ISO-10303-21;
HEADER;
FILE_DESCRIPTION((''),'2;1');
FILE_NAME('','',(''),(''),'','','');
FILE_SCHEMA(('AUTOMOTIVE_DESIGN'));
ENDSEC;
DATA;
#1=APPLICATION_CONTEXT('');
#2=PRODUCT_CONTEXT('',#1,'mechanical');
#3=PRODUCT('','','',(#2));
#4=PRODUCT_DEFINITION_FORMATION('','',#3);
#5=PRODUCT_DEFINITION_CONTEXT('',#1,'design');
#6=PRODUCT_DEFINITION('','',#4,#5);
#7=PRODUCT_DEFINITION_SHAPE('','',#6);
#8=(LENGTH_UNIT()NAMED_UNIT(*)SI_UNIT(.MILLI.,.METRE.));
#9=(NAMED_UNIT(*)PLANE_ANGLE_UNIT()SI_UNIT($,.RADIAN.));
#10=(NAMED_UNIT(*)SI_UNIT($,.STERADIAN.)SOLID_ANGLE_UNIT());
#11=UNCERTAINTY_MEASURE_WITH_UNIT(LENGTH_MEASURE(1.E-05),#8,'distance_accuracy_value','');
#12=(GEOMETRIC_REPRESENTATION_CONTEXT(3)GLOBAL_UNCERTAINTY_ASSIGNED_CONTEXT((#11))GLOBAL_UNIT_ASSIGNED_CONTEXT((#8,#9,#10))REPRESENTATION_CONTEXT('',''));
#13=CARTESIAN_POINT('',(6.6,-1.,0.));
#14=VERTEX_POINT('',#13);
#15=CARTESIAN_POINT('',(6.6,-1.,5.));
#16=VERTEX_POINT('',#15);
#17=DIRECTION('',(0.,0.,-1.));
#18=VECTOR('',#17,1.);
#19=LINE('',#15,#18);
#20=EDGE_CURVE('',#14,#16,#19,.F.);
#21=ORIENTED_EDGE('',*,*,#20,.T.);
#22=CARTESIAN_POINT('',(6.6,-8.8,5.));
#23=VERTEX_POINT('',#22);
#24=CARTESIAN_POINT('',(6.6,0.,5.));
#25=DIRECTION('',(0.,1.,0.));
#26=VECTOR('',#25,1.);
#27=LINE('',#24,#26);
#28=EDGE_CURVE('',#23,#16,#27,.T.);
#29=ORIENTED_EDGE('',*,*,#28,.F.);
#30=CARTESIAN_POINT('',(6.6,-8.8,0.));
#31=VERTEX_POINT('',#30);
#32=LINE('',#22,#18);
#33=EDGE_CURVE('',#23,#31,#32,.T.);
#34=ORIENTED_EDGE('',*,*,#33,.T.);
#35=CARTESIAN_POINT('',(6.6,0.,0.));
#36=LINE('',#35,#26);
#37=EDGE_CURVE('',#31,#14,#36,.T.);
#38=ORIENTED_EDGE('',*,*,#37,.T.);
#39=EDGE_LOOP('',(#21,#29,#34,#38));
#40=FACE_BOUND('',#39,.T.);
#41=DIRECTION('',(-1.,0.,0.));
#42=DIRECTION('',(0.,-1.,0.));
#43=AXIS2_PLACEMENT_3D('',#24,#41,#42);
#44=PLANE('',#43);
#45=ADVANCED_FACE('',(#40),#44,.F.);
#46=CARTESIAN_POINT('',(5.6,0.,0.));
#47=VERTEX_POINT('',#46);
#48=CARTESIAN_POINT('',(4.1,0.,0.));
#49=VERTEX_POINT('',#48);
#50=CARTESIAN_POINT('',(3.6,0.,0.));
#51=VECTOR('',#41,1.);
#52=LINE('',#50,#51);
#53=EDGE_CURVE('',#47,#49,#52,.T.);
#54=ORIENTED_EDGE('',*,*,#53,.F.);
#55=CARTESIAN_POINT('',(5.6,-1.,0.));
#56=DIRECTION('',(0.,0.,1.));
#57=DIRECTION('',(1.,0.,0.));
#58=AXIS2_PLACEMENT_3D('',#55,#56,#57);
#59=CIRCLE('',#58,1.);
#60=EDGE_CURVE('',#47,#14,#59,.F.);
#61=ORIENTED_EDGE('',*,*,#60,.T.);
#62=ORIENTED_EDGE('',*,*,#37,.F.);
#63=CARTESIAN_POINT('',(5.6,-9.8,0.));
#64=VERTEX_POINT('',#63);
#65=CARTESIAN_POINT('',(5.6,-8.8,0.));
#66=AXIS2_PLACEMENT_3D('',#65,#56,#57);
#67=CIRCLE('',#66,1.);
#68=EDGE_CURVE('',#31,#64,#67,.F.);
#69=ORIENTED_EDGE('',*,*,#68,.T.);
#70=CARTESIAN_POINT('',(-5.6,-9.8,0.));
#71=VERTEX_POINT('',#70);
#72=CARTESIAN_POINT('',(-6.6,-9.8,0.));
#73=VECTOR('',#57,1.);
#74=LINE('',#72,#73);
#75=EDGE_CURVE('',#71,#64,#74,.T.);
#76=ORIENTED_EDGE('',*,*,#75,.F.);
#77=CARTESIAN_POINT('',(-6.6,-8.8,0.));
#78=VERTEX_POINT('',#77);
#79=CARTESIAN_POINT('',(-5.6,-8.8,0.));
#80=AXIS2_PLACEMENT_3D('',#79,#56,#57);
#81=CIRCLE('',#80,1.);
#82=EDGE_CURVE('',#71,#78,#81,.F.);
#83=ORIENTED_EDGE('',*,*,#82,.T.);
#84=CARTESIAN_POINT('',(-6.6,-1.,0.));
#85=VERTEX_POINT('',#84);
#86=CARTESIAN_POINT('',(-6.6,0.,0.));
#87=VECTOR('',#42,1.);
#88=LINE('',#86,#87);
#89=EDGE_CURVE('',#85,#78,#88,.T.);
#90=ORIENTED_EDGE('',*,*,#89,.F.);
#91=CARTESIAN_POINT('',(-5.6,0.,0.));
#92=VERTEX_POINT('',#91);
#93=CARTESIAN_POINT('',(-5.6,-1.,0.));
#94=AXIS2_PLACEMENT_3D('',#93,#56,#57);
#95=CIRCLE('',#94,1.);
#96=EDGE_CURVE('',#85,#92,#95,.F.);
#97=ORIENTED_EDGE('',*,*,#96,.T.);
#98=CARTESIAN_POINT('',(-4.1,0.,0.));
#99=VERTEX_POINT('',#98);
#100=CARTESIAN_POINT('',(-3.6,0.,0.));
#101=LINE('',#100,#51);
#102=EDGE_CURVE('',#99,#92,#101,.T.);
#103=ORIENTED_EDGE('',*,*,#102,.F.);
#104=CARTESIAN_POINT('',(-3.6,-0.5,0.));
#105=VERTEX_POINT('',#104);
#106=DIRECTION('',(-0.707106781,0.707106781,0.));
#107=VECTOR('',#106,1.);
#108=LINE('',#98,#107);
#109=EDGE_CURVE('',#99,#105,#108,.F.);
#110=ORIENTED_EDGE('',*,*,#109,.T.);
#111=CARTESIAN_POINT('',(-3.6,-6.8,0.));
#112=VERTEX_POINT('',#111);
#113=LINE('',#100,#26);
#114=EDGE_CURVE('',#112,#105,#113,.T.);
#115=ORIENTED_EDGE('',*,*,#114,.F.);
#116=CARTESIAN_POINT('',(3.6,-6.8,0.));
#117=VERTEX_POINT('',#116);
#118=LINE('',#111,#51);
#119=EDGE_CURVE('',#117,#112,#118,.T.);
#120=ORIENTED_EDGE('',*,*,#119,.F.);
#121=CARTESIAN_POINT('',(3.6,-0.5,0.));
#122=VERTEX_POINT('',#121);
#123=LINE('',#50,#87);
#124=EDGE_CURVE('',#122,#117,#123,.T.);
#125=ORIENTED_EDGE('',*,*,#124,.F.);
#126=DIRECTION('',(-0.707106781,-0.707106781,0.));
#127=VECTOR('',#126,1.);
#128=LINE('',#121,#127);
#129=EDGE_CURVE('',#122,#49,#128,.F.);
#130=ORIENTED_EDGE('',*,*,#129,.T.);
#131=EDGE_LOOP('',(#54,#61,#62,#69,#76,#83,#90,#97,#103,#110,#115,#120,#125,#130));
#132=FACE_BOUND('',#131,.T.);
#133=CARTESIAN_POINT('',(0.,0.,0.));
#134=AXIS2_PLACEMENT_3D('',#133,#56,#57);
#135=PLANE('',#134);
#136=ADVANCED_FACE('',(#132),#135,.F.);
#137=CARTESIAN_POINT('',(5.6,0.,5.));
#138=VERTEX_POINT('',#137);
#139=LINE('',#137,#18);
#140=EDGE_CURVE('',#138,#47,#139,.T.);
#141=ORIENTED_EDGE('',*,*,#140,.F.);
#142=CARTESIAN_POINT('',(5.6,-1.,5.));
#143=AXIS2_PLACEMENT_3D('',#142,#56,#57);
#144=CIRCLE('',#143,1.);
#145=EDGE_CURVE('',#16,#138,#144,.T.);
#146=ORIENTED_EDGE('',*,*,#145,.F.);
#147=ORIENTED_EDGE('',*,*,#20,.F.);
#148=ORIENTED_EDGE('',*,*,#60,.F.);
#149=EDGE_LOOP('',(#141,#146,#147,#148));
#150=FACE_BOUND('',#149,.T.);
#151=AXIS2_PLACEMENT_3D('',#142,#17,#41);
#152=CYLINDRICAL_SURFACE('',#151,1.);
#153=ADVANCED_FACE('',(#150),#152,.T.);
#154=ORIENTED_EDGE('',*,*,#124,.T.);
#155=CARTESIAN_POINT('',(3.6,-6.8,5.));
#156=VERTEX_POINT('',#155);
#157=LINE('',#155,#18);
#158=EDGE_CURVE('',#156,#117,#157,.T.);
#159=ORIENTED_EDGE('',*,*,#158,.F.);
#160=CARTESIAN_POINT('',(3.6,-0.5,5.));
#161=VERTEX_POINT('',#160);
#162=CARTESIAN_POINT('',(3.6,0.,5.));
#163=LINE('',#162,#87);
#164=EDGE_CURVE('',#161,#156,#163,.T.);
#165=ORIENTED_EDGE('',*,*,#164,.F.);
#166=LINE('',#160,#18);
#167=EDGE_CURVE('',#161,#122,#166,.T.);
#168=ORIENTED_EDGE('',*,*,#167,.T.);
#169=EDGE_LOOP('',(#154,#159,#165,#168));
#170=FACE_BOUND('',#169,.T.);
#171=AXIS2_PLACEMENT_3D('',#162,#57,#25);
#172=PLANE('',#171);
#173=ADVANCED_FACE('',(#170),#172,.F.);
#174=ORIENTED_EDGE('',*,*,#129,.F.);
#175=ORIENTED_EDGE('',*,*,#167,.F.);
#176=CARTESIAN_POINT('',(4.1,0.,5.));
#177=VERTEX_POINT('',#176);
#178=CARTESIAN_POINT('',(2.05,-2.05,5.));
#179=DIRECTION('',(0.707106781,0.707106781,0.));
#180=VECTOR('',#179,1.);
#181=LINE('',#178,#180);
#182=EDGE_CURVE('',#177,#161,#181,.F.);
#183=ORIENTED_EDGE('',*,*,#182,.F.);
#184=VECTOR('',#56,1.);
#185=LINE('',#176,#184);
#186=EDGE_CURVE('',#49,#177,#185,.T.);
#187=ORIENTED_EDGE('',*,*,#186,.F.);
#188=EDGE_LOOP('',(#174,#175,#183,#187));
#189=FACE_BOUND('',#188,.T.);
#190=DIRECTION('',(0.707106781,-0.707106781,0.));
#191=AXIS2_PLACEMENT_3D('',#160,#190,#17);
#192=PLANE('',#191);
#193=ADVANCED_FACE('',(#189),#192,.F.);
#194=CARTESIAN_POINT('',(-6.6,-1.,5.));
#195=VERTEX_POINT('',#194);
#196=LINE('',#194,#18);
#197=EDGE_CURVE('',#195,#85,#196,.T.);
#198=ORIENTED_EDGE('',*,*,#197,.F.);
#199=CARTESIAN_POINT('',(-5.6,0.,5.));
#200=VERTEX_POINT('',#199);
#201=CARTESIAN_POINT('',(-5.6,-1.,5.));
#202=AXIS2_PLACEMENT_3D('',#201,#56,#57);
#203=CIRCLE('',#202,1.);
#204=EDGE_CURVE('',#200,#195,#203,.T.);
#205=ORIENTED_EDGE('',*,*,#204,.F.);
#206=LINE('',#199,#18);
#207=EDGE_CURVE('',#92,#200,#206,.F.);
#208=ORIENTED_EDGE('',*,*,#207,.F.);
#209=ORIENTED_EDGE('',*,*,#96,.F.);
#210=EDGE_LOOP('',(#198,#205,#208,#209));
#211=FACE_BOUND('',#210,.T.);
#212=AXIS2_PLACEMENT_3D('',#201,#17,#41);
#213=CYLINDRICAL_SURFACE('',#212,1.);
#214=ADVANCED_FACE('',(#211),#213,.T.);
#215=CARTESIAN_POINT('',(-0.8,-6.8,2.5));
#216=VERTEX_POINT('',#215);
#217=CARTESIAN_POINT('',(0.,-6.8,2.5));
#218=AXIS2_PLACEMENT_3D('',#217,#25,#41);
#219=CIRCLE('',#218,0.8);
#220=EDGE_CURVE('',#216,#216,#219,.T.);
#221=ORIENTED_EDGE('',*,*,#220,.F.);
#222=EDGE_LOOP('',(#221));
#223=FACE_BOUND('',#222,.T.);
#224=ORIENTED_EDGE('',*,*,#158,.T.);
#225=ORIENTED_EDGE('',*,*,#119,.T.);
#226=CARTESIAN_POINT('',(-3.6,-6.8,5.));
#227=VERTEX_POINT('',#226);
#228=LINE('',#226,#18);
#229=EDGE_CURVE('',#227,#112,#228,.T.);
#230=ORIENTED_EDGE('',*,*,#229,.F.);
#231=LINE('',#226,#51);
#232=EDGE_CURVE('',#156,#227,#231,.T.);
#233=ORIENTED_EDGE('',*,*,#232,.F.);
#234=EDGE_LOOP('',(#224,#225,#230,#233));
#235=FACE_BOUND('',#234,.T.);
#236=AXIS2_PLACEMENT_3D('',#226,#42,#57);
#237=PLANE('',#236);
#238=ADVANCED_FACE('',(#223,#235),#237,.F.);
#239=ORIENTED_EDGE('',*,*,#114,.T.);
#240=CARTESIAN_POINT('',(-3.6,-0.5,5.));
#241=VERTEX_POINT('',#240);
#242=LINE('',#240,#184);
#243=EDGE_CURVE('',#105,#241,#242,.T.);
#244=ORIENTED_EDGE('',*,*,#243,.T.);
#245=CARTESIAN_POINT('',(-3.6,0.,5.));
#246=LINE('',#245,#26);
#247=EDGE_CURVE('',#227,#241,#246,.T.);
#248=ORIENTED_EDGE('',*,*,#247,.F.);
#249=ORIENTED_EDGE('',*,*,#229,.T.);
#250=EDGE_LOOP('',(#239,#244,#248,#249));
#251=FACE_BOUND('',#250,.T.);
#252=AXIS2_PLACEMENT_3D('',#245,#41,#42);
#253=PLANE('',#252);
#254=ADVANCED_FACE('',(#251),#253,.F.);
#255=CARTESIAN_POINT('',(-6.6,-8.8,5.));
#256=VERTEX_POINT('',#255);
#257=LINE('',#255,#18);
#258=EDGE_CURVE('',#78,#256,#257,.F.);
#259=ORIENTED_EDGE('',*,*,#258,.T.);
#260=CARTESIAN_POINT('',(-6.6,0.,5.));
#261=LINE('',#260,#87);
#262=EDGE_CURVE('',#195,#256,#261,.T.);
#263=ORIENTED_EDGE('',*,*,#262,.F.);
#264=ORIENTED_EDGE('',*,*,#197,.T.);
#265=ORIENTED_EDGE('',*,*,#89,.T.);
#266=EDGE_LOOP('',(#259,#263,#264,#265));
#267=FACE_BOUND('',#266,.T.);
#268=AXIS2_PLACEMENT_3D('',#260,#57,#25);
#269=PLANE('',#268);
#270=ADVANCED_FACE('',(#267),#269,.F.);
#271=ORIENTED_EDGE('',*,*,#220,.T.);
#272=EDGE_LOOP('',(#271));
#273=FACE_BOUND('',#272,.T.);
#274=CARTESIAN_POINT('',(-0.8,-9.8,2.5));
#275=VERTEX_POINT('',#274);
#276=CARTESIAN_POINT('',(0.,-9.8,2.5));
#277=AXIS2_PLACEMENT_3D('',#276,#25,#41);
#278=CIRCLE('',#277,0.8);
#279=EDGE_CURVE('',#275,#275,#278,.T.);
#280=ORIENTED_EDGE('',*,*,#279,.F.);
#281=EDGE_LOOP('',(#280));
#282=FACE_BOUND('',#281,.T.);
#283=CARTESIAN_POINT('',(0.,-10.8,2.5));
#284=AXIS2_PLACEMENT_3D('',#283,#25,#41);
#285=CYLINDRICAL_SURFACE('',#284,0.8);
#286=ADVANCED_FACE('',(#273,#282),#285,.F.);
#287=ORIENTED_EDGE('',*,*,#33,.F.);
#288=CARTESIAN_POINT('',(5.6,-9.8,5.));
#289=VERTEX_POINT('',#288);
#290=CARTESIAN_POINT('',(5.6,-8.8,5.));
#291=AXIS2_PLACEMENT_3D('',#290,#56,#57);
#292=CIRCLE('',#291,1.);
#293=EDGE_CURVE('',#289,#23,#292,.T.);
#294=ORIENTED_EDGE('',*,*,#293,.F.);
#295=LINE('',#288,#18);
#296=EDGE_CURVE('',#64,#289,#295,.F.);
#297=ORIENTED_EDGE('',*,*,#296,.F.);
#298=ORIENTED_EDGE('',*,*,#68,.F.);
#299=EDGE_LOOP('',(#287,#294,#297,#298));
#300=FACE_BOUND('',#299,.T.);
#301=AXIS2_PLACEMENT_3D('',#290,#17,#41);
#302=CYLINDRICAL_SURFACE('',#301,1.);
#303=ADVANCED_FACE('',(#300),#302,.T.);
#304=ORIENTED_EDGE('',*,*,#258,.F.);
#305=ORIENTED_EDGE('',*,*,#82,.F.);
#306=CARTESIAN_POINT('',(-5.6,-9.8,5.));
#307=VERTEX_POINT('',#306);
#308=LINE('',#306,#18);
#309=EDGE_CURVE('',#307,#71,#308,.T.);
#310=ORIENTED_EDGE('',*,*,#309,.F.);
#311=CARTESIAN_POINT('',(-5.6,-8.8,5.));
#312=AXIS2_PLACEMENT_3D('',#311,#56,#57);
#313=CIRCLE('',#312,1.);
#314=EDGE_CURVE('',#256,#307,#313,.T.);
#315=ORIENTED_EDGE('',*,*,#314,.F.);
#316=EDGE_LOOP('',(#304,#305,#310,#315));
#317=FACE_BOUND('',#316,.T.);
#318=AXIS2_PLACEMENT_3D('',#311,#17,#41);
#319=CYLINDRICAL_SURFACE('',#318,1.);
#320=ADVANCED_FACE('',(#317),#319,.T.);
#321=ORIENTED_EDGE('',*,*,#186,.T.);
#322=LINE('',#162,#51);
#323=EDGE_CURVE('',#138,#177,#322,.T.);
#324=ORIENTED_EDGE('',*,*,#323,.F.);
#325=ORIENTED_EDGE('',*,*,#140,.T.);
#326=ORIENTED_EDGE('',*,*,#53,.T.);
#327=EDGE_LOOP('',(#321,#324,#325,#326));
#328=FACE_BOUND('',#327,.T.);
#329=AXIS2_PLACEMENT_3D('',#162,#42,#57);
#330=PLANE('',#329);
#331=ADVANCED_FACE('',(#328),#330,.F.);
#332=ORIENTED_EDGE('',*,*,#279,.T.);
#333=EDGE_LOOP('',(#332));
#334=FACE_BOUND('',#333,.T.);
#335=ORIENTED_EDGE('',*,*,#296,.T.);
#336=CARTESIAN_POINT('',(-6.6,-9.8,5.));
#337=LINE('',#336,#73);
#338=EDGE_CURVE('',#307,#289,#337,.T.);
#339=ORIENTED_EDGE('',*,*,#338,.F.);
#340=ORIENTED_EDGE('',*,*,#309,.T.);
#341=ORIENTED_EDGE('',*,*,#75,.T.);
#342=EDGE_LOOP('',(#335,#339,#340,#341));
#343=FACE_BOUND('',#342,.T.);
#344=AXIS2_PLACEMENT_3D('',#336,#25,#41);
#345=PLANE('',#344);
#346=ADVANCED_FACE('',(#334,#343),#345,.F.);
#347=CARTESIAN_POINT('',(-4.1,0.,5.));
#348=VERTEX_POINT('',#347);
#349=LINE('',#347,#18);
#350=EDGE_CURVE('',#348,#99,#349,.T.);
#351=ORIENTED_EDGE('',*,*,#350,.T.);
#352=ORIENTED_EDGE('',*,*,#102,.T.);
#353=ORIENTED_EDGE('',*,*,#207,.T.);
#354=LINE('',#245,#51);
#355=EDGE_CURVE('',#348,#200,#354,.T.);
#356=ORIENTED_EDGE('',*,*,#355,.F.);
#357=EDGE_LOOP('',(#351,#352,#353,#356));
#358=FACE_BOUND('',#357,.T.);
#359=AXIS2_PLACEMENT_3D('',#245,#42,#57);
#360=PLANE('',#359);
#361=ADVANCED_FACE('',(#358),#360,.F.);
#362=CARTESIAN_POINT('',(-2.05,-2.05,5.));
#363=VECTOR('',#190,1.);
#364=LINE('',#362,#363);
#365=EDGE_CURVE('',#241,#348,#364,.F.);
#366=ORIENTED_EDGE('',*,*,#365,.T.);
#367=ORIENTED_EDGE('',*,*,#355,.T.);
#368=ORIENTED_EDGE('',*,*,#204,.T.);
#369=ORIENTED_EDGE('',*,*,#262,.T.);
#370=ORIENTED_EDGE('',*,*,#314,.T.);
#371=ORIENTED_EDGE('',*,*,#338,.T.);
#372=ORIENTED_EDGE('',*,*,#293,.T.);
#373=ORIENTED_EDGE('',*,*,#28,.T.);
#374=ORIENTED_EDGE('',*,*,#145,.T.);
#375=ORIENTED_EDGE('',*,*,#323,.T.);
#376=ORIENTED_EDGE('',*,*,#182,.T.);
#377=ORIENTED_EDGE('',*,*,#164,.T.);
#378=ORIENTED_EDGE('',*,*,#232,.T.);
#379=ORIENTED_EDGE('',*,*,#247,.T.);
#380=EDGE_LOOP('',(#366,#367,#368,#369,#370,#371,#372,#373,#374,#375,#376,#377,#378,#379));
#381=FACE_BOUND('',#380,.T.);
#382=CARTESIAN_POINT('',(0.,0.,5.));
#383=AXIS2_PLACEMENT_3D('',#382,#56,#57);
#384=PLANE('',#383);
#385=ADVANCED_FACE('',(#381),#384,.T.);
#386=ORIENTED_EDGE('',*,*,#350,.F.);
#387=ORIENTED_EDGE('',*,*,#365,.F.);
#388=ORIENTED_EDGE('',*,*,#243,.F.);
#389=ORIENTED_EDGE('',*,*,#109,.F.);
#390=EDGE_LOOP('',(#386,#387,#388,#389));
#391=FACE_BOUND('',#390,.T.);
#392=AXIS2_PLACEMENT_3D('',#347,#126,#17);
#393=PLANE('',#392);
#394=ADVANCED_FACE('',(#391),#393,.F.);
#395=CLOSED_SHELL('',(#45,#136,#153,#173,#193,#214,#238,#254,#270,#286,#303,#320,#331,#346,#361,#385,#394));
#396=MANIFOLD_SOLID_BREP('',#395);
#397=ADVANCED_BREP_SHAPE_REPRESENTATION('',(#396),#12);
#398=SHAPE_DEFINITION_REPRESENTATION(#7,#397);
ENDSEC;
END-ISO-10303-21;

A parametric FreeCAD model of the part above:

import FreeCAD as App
import Part
import Sketcher
from FreeCAD import Vector


def edges_at(feature, points):
    """Names of the edges that pass closest to the given points."""
    edges = feature.Shape.Edges
    near = lambda p: min(range(len(edges)), key=lambda i: edges[i].distToShape(Part.Vertex(*p))[0])
    return sorted({f"Edge{near(p) + 1}" for p in points})

doc = App.newDocument("Part")
body = doc.addObject("PartDesign::Body", "Body")

sketch1 = body.newObject("Sketcher::SketchObject", "Sketch")
sketch1.AttachmentSupport = (doc.getObject("XY_Plane"), [""])
sketch1.MapMode = "FlatFace"
sketch1.addGeometry([
    Part.LineSegment(Vector(-3.6, -6.8, 0), Vector(-3.6, 0, 0)),
    Part.LineSegment(Vector(-3.6, 0, 0), Vector(-6.6, 0, 0)),
    Part.LineSegment(Vector(-6.6, 0, 0), Vector(-6.6, -9.8, 0)),
    Part.LineSegment(Vector(-6.6, -9.8, 0), Vector(6.6, -9.8, 0)),
    Part.LineSegment(Vector(6.6, -9.8, 0), Vector(6.6, 0, 0)),
    Part.LineSegment(Vector(6.6, 0, 0), Vector(3.6, 0, 0)),
    Part.LineSegment(Vector(3.6, 0, 0), Vector(3.6, -6.8, 0)),
    Part.LineSegment(Vector(3.6, -6.8, 0), Vector(-3.6, -6.8, 0)),
], False)
sketch1.addConstraint([
    Sketcher.Constraint("Coincident", 0, 2, 1, 1),
    Sketcher.Constraint("Coincident", 1, 2, 2, 1),
    Sketcher.Constraint("Coincident", 2, 2, 3, 1),
    Sketcher.Constraint("Coincident", 3, 2, 4, 1),
    Sketcher.Constraint("Coincident", 4, 2, 5, 1),
    Sketcher.Constraint("Coincident", 5, 2, 6, 1),
    Sketcher.Constraint("Coincident", 6, 2, 7, 1),
    Sketcher.Constraint("Coincident", 7, 2, 0, 1),
    Sketcher.Constraint("Vertical", 0),
    Sketcher.Constraint("Horizontal", 1),
    Sketcher.Constraint("Vertical", 2),
    Sketcher.Constraint("Horizontal", 3),
    Sketcher.Constraint("Vertical", 4),
    Sketcher.Constraint("Horizontal", 5),
    Sketcher.Constraint("Vertical", 6),
    Sketcher.Constraint("Horizontal", 7),
    Sketcher.Constraint("Symmetric", 1, 2, 4, 2, -1, 1),
    Sketcher.Constraint("Symmetric", 0, 2, 5, 2, -2),
    Sketcher.Constraint("DistanceX", 1, 2, 1, 1, 3.0),
    Sketcher.Constraint("DistanceX", 3, 1, 3, 2, 13.2),
    Sketcher.Constraint("DistanceY", 0, 1, 0, 2, 6.8),
    Sketcher.Constraint("DistanceY", 2, 2, 2, 1, 9.8),
])
pad1 = body.newObject("PartDesign::Pad", "Pad")
pad1.Profile = sketch1
pad1.Length = 5
doc.recompute()

chamfer = body.newObject("PartDesign::Chamfer", "Chamfer")
chamfer.Base = (pad1, edges_at(pad1, [(-3.6, 0, 2.5), (3.6, 0, 2.5)]))
chamfer.Size = 0.5
doc.recompute()

fillet = body.newObject("PartDesign::Fillet", "Fillet")
fillet.Base = (chamfer, edges_at(chamfer, [
    (6.6, 0, 2.5),
    (6.6, -9.8, 2.5),
    (-6.6, -9.8, 2.5),
    (-6.6, 0, 2.5),
]))
fillet.Radius = 1

sketch2 = body.newObject("Sketcher::SketchObject", "Sketch001")
sketch2.AttachmentSupport = (doc.getObject("XZ_Plane"), [""])
sketch2.MapMode = "FlatFace"
sketch2.AttachmentOffset = App.Placement(Vector(0, 0, 6.8), App.Rotation())
sketch2.addGeometry(Part.Circle(Vector(0, 2.5, 0), Vector(0, 0, 1), 0.8), False)
sketch2.addConstraint([
    Sketcher.Constraint("PointOnObject", 0, 3, -2),
    Sketcher.Constraint("Diameter", 0, 1.6),
    Sketcher.Constraint("DistanceY", -1, 1, 0, 3, 2.5),
])
pocket1 = body.newObject("PartDesign::Pocket", "Pocket")
pocket1.Profile = sketch2
pocket1.Length = 4
pocket1.Reversed = True

doc.recompute()
